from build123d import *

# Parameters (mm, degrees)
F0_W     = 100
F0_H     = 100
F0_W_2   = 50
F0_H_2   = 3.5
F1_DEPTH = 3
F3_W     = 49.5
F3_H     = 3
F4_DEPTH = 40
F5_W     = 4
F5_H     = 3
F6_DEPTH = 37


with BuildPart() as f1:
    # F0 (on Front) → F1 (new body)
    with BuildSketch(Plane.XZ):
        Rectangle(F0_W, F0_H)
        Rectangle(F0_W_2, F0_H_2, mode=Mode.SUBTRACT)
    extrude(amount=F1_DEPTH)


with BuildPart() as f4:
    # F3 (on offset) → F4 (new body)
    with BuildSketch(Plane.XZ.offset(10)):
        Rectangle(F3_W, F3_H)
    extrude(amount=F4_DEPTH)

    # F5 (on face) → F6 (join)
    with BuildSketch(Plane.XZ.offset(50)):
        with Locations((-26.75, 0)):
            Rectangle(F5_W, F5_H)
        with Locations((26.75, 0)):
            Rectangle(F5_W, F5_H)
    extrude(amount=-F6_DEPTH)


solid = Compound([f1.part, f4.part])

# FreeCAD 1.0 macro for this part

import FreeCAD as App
import Part
import Sketcher
from FreeCAD import Vector
Q = App.Units.Quantity

doc = App.newDocument("Part")
body = doc.addObject("PartDesign::Body", "Body")

# Sketch on XZ plane
sketch1 = body.newObject("Sketcher::SketchObject", "Sketch")
sketch1.AttachmentSupport = (doc.getObject("XZ_Plane"), [""])
sketch1.MapMode = "FlatFace"
sketch1.addGeometry([
    Part.LineSegment(Vector(-50, 50, 0), Vector(-50, -50, 0)),  # 0
    Part.LineSegment(Vector(-50, -50, 0), Vector(50, -50, 0)),  # 1
    Part.LineSegment(Vector(50, -50, 0), Vector(50, 50, 0)),  # 2
    Part.LineSegment(Vector(50, 50, 0), Vector(-50, 50, 0)),  # 3
    Part.LineSegment(Vector(25, -1.8, 0), Vector(-25, -1.8, 0)),  # 4
    Part.LineSegment(Vector(-25, -1.8, 0), Vector(-25, 1.8, 0)),  # 5
    Part.LineSegment(Vector(-25, 1.8, 0), Vector(25, 1.8, 0)),  # 6
    Part.LineSegment(Vector(25, 1.8, 0), Vector(25, -1.8, 0)),  # 7
], False)
sketch1.addConstraint([
    Sketcher.Constraint("Coincident", 0, 2, 1, 1),
    Sketcher.Constraint("Coincident", 1, 2, 2, 1),
    Sketcher.Constraint("Coincident", 2, 2, 3, 1),
    Sketcher.Constraint("Coincident", 3, 2, 0, 1),
    Sketcher.Constraint("Coincident", 4, 2, 5, 1),
    Sketcher.Constraint("Coincident", 5, 2, 6, 1),
    Sketcher.Constraint("Coincident", 6, 2, 7, 1),
    Sketcher.Constraint("Coincident", 7, 2, 4, 1),
    Sketcher.Constraint("Vertical", 0),
    Sketcher.Constraint("Horizontal", 1),
    Sketcher.Constraint("Vertical", 2),
    Sketcher.Constraint("Horizontal", 3),
    Sketcher.Constraint("Horizontal", 4),
    Sketcher.Constraint("Vertical", 5),
    Sketcher.Constraint("Horizontal", 6),
    Sketcher.Constraint("Vertical", 7),
    Sketcher.Constraint("Symmetric", 0, 2, 2, 2, -1, 1),
    Sketcher.Constraint("Symmetric", 4, 2, 6, 2, -1, 1),
    Sketcher.Constraint("Equal", 3, 0),
    Sketcher.Constraint("DistanceX", 1, 1, 1, 2, Q("100 mm")),
    Sketcher.Constraint("DistanceX", 4, 2, 4, 1, Q("50 mm")),
    Sketcher.Constraint("DistanceY", 5, 1, 5, 2, Q("3.5 mm")),
])
pad1 = body.newObject("PartDesign::Pad", "Pad")
pad1.Profile = sketch1
pad1.Length = 3
body2 = doc.addObject("PartDesign::Body", "Body001")

# Sketch on XZ plane
sketch2 = body2.newObject("Sketcher::SketchObject", "Sketch001")
sketch2.AttachmentSupport = (doc.getObject("XZ_Plane001"), [""])
sketch2.MapMode = "FlatFace"
sketch2.AttachmentOffset = App.Placement(Vector(0, 0, 10), App.Rotation())
sketch2.addGeometry([
    Part.LineSegment(Vector(-24.8, 1.5, 0), Vector(-24.8, -1.5, 0)),
    Part.LineSegment(Vector(-24.8, -1.5, 0), Vector(24.8, -1.5, 0)),
    Part.LineSegment(Vector(24.8, -1.5, 0), Vector(24.8, 1.5, 0)),
    Part.LineSegment(Vector(24.8, 1.5, 0), Vector(-24.8, 1.5, 0)),
], False)
sketch2.addConstraint([
    Sketcher.Constraint("Coincident", 0, 2, 1, 1),
    Sketcher.Constraint("Coincident", 1, 2, 2, 1),
    Sketcher.Constraint("Coincident", 2, 2, 3, 1),
    Sketcher.Constraint("Coincident", 3, 2, 0, 1),
    Sketcher.Constraint("Vertical", 0),
    Sketcher.Constraint("Horizontal", 1),
    Sketcher.Constraint("Vertical", 2),
    Sketcher.Constraint("Horizontal", 3),
    Sketcher.Constraint("Symmetric", 0, 2, 2, 2, -1, 1),
    Sketcher.Constraint("DistanceY", 0, 2, 0, 1, Q("3 mm")),
    Sketcher.Constraint("DistanceX", 1, 1, 1, 2, Q("49.5 mm")),
])
pad2 = body2.newObject("PartDesign::Pad", "Pad001")
pad2.Profile = sketch2
pad2.Length = 40

# Sketch on XZ plane
sketch3 = body2.newObject("Sketcher::SketchObject", "Sketch002")
sketch3.AttachmentSupport = (doc.getObject("XZ_Plane001"), [""])
sketch3.MapMode = "FlatFace"
sketch3.AttachmentOffset = App.Placement(Vector(0, 0, 50), App.Rotation())
sketch3.addGeometry([
    Part.LineSegment(Vector(-28.8, 1.5, 0), Vector(-28.8, -1.5, 0)),  # 0
    Part.LineSegment(Vector(-28.8, -1.5, 0), Vector(-24.8, -1.5, 0)),  # 1
    Part.LineSegment(Vector(-24.8, -1.5, 0), Vector(-24.8, 1.5, 0)),  # 2
    Part.LineSegment(Vector(-24.8, 1.5, 0), Vector(-28.8, 1.5, 0)),  # 3
    Part.LineSegment(Vector(24.8, 1.5, 0), Vector(24.8, -1.5, 0)),  # 4
    Part.LineSegment(Vector(24.8, -1.5, 0), Vector(28.8, -1.5, 0)),  # 5
    Part.LineSegment(Vector(28.8, -1.5, 0), Vector(28.8, 1.5, 0)),  # 6
    Part.LineSegment(Vector(28.8, 1.5, 0), Vector(24.8, 1.5, 0)),  # 7
], False)
sketch3.addConstraint([
    Sketcher.Constraint("Coincident", 0, 2, 1, 1),
    Sketcher.Constraint("Coincident", 1, 2, 2, 1),
    Sketcher.Constraint("Coincident", 2, 2, 3, 1),
    Sketcher.Constraint("Coincident", 3, 2, 0, 1),
    Sketcher.Constraint("Coincident", 4, 2, 5, 1),
    Sketcher.Constraint("Coincident", 5, 2, 6, 1),
    Sketcher.Constraint("Coincident", 6, 2, 7, 1),
    Sketcher.Constraint("Coincident", 7, 2, 4, 1),
    Sketcher.Constraint("Vertical", 0),
    Sketcher.Constraint("Horizontal", 1),
    Sketcher.Constraint("Vertical", 2),
    Sketcher.Constraint("Horizontal", 3),
    Sketcher.Constraint("Vertical", 4),
    Sketcher.Constraint("Horizontal", 5),
    Sketcher.Constraint("Vertical", 6),
    Sketcher.Constraint("Horizontal", 7),
    Sketcher.Constraint("Symmetric", 2, 2, 4, 2, -1, 1),
    Sketcher.Constraint("Symmetric", 0, 2, 6, 2, -1, 1),
    Sketcher.Constraint("Horizontal", 1, 2, 4, 2),
    Sketcher.Constraint("DistanceX", 1, 1, 1, 2, Q("4 mm")),
    Sketcher.Constraint("DistanceY", 0, 2, 0, 1, Q("3 mm")),
    Sketcher.Constraint("DistanceX", 1, 2, 4, 2, Q("49.5 mm")),
])
pad3 = body2.newObject("PartDesign::Pad", "Pad002")
pad3.Profile = sketch3
pad3.Length = 37
pad3.Reversed = True

doc.recompute()
